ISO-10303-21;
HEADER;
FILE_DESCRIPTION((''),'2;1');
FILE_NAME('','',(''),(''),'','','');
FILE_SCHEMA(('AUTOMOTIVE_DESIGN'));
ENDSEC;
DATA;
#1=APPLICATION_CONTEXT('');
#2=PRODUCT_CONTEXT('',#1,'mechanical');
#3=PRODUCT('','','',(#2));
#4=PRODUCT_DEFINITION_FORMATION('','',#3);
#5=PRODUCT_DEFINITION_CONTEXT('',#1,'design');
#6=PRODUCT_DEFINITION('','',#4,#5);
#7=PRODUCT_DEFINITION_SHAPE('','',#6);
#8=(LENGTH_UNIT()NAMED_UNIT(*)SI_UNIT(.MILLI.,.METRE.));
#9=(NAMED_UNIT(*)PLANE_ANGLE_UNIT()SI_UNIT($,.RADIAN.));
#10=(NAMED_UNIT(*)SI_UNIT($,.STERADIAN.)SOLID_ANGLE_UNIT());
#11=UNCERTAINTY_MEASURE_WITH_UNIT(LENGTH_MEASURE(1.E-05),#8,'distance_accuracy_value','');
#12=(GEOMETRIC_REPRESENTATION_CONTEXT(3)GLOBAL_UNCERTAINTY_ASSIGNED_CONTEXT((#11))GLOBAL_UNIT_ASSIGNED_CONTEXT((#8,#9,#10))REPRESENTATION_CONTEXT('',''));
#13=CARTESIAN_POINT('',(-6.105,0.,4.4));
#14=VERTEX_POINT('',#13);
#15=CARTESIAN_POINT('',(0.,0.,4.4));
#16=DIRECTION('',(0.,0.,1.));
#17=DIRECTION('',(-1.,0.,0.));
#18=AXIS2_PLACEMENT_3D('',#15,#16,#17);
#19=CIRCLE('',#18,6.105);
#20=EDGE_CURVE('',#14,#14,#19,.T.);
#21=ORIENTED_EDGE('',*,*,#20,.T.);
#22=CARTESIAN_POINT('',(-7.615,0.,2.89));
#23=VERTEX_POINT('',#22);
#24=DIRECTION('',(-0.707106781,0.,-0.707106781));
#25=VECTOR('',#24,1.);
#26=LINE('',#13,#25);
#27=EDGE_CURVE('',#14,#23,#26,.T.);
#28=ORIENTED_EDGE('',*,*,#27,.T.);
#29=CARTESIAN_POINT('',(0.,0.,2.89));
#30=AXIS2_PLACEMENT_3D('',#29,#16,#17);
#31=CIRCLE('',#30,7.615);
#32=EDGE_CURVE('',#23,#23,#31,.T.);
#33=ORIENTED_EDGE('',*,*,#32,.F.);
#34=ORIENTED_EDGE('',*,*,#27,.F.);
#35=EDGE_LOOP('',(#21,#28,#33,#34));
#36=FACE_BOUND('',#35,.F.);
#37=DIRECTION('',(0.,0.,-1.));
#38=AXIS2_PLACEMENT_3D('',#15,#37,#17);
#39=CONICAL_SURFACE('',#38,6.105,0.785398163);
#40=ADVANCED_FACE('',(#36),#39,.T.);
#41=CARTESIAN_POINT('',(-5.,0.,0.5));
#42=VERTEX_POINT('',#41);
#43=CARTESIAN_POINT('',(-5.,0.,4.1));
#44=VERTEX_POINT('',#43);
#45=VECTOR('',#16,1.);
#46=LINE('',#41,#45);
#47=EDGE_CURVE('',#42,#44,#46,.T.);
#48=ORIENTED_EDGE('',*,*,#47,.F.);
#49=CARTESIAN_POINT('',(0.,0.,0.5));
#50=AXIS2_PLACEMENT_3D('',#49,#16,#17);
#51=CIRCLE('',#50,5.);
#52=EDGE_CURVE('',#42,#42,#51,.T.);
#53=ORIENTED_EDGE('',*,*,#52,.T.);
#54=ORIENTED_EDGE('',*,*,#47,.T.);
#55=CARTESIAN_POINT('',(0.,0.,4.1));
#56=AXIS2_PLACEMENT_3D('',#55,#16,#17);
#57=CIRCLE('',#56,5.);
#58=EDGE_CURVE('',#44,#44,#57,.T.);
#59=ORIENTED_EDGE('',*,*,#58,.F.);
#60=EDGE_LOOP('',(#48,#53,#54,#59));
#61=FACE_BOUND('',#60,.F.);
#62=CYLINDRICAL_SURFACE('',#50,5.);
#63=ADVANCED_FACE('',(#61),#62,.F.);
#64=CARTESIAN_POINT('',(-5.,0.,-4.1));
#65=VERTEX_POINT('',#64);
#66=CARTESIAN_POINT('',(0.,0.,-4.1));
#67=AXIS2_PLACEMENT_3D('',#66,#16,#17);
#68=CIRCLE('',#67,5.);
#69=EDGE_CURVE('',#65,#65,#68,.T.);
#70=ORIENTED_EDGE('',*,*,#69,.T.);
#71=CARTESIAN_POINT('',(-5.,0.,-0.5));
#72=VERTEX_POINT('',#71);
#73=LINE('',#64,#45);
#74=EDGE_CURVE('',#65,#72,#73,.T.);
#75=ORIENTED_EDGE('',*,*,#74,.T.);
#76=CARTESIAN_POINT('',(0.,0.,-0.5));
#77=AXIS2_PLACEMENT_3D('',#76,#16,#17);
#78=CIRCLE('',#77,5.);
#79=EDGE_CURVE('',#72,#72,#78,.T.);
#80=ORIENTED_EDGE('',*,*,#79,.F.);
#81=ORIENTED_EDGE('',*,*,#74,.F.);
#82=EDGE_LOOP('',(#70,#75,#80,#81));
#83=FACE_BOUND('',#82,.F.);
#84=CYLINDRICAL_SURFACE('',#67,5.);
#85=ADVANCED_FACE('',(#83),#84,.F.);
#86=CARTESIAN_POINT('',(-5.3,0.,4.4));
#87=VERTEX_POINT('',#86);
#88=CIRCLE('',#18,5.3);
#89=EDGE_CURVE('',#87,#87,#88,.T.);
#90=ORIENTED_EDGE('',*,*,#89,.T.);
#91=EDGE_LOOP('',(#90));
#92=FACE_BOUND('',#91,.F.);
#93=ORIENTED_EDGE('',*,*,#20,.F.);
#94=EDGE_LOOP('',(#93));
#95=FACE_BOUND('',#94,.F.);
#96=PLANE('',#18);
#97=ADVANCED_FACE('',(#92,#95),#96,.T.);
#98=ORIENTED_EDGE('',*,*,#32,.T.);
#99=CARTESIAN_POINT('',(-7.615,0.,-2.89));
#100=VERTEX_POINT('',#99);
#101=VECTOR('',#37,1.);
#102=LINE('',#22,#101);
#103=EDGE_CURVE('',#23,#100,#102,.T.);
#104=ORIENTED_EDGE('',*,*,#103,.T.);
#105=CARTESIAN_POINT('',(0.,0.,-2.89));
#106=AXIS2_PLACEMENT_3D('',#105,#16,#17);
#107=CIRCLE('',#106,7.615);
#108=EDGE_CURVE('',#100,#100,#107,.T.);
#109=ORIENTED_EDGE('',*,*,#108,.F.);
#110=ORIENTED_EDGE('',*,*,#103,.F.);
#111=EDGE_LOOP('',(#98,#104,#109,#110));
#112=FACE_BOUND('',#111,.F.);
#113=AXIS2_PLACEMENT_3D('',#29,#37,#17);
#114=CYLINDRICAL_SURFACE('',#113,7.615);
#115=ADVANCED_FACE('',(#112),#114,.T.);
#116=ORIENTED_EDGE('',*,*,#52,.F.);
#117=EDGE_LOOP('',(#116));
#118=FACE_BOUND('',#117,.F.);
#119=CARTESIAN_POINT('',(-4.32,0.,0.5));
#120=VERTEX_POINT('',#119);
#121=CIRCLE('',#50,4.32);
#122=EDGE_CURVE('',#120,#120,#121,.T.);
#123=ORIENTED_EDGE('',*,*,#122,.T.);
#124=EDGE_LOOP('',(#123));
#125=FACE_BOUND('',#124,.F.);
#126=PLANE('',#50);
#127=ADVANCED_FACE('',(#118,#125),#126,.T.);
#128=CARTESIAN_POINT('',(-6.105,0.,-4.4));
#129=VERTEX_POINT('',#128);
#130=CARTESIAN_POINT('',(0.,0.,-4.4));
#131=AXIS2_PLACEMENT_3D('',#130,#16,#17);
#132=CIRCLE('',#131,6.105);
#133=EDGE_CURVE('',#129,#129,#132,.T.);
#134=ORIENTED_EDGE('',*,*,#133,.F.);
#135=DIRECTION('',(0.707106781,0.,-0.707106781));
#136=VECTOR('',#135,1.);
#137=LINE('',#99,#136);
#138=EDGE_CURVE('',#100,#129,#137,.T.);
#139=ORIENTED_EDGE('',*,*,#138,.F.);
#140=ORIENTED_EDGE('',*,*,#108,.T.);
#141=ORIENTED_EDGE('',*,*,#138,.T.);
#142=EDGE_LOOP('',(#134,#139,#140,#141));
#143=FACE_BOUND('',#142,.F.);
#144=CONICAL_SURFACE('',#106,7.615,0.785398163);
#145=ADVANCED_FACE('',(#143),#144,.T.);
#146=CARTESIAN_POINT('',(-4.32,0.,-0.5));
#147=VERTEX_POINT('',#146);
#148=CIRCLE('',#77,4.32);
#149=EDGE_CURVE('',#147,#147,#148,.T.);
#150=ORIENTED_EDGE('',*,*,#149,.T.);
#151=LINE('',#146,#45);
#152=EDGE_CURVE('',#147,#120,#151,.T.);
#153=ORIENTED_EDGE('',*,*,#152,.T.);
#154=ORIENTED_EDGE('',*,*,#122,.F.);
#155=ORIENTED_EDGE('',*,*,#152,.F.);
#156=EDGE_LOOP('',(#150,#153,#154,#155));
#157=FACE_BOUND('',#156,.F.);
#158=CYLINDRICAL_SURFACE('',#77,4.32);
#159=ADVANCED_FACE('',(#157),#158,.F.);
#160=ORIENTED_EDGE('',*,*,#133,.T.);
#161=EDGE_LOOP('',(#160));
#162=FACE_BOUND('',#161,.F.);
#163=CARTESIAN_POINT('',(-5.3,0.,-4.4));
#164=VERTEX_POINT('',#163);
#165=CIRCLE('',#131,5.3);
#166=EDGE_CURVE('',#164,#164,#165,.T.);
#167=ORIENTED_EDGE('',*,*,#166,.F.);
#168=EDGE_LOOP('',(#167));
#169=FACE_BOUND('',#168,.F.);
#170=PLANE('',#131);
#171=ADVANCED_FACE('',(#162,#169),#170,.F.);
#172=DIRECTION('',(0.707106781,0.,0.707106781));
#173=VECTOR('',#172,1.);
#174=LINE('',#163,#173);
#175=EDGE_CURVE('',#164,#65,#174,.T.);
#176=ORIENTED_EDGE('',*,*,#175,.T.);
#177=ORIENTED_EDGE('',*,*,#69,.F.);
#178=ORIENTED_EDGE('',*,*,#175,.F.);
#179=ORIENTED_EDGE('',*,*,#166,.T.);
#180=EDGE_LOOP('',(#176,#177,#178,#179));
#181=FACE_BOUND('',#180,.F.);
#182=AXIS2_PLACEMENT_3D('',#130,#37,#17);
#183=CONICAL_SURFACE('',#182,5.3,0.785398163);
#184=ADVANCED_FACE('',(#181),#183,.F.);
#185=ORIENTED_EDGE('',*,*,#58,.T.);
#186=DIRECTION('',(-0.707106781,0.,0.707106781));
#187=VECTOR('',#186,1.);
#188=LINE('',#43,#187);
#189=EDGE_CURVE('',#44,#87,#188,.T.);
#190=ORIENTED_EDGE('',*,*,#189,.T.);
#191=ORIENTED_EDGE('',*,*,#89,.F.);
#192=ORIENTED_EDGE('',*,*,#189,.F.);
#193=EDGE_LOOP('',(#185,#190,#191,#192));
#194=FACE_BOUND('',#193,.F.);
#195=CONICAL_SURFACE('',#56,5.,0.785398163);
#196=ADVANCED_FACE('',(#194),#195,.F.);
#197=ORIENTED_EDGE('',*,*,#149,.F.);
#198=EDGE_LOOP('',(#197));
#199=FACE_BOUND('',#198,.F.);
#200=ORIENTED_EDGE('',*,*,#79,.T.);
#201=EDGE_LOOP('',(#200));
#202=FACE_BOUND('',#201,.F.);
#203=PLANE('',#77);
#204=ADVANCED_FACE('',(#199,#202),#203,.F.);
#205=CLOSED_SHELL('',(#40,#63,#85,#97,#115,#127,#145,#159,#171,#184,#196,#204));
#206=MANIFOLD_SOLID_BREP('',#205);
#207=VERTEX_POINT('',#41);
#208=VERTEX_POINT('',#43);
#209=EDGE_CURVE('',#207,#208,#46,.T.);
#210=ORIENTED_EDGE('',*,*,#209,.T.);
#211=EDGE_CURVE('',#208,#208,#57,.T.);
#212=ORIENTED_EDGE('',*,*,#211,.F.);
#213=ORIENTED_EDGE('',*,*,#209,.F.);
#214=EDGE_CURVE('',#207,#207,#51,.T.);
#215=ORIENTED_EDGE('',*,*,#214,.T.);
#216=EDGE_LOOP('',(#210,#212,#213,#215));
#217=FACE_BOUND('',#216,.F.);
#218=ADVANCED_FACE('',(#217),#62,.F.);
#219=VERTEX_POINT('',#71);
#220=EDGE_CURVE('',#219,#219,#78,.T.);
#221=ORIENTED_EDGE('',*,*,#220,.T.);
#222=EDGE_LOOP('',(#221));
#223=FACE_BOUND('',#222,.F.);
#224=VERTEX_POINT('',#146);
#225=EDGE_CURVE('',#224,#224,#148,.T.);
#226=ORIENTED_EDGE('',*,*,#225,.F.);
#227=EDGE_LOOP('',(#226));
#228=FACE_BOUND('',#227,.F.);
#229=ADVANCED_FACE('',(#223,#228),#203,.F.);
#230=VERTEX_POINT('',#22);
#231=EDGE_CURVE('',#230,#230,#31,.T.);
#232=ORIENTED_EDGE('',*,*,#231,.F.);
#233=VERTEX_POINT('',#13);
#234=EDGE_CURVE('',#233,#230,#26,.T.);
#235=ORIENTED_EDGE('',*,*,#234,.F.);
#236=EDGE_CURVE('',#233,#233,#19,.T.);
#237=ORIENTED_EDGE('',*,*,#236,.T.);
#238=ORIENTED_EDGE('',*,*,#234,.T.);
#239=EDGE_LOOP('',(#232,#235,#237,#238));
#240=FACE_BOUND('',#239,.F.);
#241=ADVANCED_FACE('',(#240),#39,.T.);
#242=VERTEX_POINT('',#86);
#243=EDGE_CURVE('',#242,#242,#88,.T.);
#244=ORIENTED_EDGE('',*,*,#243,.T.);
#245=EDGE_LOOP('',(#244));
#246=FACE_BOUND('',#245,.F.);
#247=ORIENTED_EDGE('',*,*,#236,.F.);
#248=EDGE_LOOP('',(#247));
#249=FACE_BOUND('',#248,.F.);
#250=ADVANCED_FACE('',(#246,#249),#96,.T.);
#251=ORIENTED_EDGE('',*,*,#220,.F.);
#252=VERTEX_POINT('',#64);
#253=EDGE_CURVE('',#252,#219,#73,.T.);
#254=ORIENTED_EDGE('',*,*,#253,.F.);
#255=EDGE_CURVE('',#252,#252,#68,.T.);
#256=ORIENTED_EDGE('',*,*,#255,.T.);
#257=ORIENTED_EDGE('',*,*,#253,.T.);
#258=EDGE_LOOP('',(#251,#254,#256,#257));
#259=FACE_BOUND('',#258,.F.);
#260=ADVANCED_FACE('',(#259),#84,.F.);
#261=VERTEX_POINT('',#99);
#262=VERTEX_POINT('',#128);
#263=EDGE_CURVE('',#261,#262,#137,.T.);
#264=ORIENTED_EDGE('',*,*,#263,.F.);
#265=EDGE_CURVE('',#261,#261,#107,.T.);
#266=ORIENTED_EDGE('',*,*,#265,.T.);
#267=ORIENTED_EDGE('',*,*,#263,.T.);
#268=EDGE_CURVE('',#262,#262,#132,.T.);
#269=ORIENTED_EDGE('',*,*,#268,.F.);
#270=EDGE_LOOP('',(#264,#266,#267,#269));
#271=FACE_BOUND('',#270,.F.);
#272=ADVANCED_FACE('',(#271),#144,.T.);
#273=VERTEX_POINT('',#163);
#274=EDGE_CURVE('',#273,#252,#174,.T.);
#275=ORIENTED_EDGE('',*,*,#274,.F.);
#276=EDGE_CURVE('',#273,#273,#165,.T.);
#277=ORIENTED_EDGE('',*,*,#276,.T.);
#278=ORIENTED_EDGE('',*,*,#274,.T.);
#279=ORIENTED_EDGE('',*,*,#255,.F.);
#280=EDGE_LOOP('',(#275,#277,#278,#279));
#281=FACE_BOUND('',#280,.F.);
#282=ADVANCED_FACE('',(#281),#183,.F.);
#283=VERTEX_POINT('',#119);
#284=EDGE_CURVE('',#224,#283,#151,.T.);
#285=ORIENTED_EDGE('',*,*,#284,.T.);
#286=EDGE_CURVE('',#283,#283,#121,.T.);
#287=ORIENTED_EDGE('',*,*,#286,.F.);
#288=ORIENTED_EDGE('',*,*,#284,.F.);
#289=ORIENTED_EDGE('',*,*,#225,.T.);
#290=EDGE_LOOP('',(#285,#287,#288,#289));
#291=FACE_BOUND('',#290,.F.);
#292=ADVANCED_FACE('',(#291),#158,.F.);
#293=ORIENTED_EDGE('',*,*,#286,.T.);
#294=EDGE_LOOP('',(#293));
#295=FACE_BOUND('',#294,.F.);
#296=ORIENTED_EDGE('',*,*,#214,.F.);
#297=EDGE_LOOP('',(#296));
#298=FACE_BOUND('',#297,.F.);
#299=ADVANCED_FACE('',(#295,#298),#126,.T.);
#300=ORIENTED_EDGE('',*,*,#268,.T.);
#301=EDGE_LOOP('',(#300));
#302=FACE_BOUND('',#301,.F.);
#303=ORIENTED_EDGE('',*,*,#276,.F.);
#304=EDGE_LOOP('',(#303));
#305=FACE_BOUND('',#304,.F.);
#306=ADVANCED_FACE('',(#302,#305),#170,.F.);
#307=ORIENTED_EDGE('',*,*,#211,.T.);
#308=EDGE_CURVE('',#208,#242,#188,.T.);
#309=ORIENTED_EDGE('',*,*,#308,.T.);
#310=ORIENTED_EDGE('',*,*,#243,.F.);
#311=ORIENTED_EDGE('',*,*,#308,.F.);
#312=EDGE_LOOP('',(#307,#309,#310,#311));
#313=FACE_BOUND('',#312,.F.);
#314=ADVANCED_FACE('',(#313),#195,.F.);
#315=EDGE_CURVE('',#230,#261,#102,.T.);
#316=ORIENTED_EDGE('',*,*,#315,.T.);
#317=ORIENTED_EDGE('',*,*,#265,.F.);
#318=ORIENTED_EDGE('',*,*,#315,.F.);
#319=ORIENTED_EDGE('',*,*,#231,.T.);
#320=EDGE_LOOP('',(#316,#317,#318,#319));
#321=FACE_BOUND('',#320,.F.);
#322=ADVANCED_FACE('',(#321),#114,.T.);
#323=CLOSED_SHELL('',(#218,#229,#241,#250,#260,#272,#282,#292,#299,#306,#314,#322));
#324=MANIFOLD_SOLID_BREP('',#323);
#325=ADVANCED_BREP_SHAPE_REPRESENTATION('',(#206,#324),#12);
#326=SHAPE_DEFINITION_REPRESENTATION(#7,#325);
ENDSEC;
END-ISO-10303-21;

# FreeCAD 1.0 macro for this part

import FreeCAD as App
import Part
import Sketcher

V = App.Vector

doc = App.newDocument("Part")
body = doc.addObject("PartDesign::Body", "Body")

# Sketch on XZ plane
sketch1 = body.newObject("Sketcher::SketchObject", "Sketch")
sketch1.AttachmentSupport = (doc.getObject("XZ_Plane"), [""])
sketch1.MapMode = "FlatFace"
sketch1.addGeometry(Part.LineSegment(V(-5, 4.1, 0), V(-5.3, 4.4, 0)), False)
sketch1.addGeometry(Part.LineSegment(V(-5.3, 4.4, 0), V(-6.105, 4.4, 0)), False)
sketch1.addGeometry(Part.LineSegment(V(-6.105, 4.4, 0), V(-7.615, 2.89, 0)), False)
sketch1.addGeometry(Part.LineSegment(V(-7.615, 2.89, 0), V(-7.615, -2.89, 0)), False)
sketch1.addGeometry(Part.LineSegment(V(-7.615, -2.89, 0), V(-6.105, -4.4, 0)), False)
sketch1.addGeometry(Part.LineSegment(V(-6.105, -4.4, 0), V(-5.3, -4.4, 0)), False)
sketch1.addGeometry(Part.LineSegment(V(-5.3, -4.4, 0), V(-5, -4.1, 0)), False)
sketch1.addGeometry(Part.LineSegment(V(-5, -4.1, 0), V(-5, -0.5, 0)), False)
sketch1.addGeometry(Part.LineSegment(V(-5, -0.5, 0), V(-4.32, -0.5, 0)), False)
sketch1.addGeometry(Part.LineSegment(V(-4.32, -0.5, 0), V(-4.32, 0.5, 0)), False)
sketch1.addGeometry(Part.LineSegment(V(-4.32, 0.5, 0), V(-5, 0.5, 0)), False)
sketch1.addGeometry(Part.LineSegment(V(-5, 0.5, 0), V(-5, 4.1, 0)), False)
sketch1.addConstraint(Sketcher.Constraint("Coincident", 0, 2, 1, 1))
sketch1.addConstraint(Sketcher.Constraint("Coincident", 1, 2, 2, 1))
sketch1.addConstraint(Sketcher.Constraint("Coincident", 2, 2, 3, 1))
sketch1.addConstraint(Sketcher.Constraint("Coincident", 3, 2, 4, 1))
sketch1.addConstraint(Sketcher.Constraint("Coincident", 4, 2, 5, 1))
sketch1.addConstraint(Sketcher.Constraint("Coincident", 5, 2, 6, 1))
sketch1.addConstraint(Sketcher.Constraint("Coincident", 6, 2, 7, 1))
sketch1.addConstraint(Sketcher.Constraint("Coincident", 7, 2, 8, 1))
sketch1.addConstraint(Sketcher.Constraint("Coincident", 8, 2, 9, 1))
sketch1.addConstraint(Sketcher.Constraint("Coincident", 9, 2, 10, 1))
sketch1.addConstraint(Sketcher.Constraint("Coincident", 10, 2, 11, 1))
sketch1.addConstraint(Sketcher.Constraint("Coincident", 11, 2, 0, 1))
sketch1.addConstraint(Sketcher.Constraint("Horizontal", 1))
sketch1.addConstraint(Sketcher.Constraint("Vertical", 3))
sketch1.addConstraint(Sketcher.Constraint("Horizontal", 5))
sketch1.addConstraint(Sketcher.Constraint("Vertical", 7))
sketch1.addConstraint(Sketcher.Constraint("Horizontal", 8))
sketch1.addConstraint(Sketcher.Constraint("Vertical", 9))
sketch1.addConstraint(Sketcher.Constraint("Horizontal", 10))
sketch1.addConstraint(Sketcher.Constraint("Vertical", 11))
sketch1.addConstraint(Sketcher.Constraint("Symmetric", 1, 2, 4, 2, -1))
sketch1.addConstraint(Sketcher.Constraint("Symmetric", 7, 2, 10, 2, -1))
sketch1.addConstraint(Sketcher.Constraint("Perpendicular", 0, 2))
sketch1.addConstraint(Sketcher.Constraint("Perpendicular", 2, 4))
sketch1.addConstraint(Sketcher.Constraint("Perpendicular", 4, 6))
sketch1.addConstraint(Sketcher.Constraint("Vertical", 0, 2, 5, 2))
sketch1.addConstraint(Sketcher.Constraint("Equal", 7, 11))
sketch1.addConstraint(Sketcher.Constraint("DistanceY", 9, 1, 9, 2, 1.0))
sketch1.addConstraint(Sketcher.Constraint("DistanceY", 7, 1, 7, 2, 3.6))
sketch1.addConstraint(Sketcher.Constraint("DistanceX", 6, 2, -1, 1, 5.0))
sketch1.addConstraint(Sketcher.Constraint("DistanceX", 8, 1, 8, 2, 0.68))
sketch1.addConstraint(Sketcher.Constraint("DistanceY", 3, 2, 3, 1, 5.78))
sketch1.addConstraint(Sketcher.Constraint("DistanceX", 0, 2, -1, 1, 5.3))
sketch1.addConstraint(Sketcher.Constraint("DistanceX", 1, 2, 1, 1, 0.805))
revolution = body.newObject("PartDesign::Revolution", "Revolution")
revolution.Profile = sketch1
revolution.ReferenceAxis = (sketch1, ["V_Axis"])
revolution.Angle = 360
body2 = doc.addObject("PartDesign::Body", "Body001")

# Sketch on XZ plane
sketch2 = body2.newObject("Sketcher::SketchObject", "Sketch001")
sketch2.AttachmentSupport = (doc.getObject("XZ_Plane001"), [""])
sketch2.MapMode = "FlatFace"
sketch2.addGeometry(Part.LineSegment(V(-5, 4.1, 0), V(-5.3, 4.4, 0)), False)
sketch2.addGeometry(Part.LineSegment(V(-5.3, 4.4, 0), V(-6.105, 4.4, 0)), False)
sketch2.addGeometry(Part.LineSegment(V(-6.105, 4.4, 0), V(-7.615, 2.89, 0)), False)
sketch2.addGeometry(Part.LineSegment(V(-7.615, 2.89, 0), V(-7.615, -2.89, 0)), False)
sketch2.addGeometry(Part.LineSegment(V(-7.615, -2.89, 0), V(-6.105, -4.4, 0)), False)
sketch2.addGeometry(Part.LineSegment(V(-6.105, -4.4, 0), V(-5.3, -4.4, 0)), False)
sketch2.addGeometry(Part.LineSegment(V(-5.3, -4.4, 0), V(-5, -4.1, 0)), False)
sketch2.addGeometry(Part.LineSegment(V(-5, -4.1, 0), V(-5, -0.5, 0)), False)
sketch2.addGeometry(Part.LineSegment(V(-5, -0.5, 0), V(-4.32, -0.5, 0)), False)
sketch2.addGeometry(Part.LineSegment(V(-4.32, -0.5, 0), V(-4.32, 0.5, 0)), False)
sketch2.addGeometry(Part.LineSegment(V(-4.32, 0.5, 0), V(-5, 0.5, 0)), False)
sketch2.addGeometry(Part.LineSegment(V(-5, 0.5, 0), V(-5, 4.1, 0)), False)
sketch2.addConstraint(Sketcher.Constraint("Coincident", 0, 2, 1, 1))
sketch2.addConstraint(Sketcher.Constraint("Coincident", 1, 2, 2, 1))
sketch2.addConstraint(Sketcher.Constraint("Coincident", 2, 2, 3, 1))
sketch2.addConstraint(Sketcher.Constraint("Coincident", 3, 2, 4, 1))
sketch2.addConstraint(Sketcher.Constraint("Coincident", 4, 2, 5, 1))
sketch2.addConstraint(Sketcher.Constraint("Coincident", 5, 2, 6, 1))
sketch2.addConstraint(Sketcher.Constraint("Coincident", 6, 2, 7, 1))
sketch2.addConstraint(Sketcher.Constraint("Coincident", 7, 2, 8, 1))
sketch2.addConstraint(Sketcher.Constraint("Coincident", 8, 2, 9, 1))
sketch2.addConstraint(Sketcher.Constraint("Coincident", 9, 2, 10, 1))
sketch2.addConstraint(Sketcher.Constraint("Coincident", 10, 2, 11, 1))
sketch2.addConstraint(Sketcher.Constraint("Coincident", 11, 2, 0, 1))
sketch2.addConstraint(Sketcher.Constraint("Horizontal", 1))
sketch2.addConstraint(Sketcher.Constraint("Vertical", 3))
sketch2.addConstraint(Sketcher.Constraint("Horizontal", 5))
sketch2.addConstraint(Sketcher.Constraint("Vertical", 7))
sketch2.addConstraint(Sketcher.Constraint("Horizontal", 8))
sketch2.addConstraint(Sketcher.Constraint("Vertical", 9))
sketch2.addConstraint(Sketcher.Constraint("Horizontal", 10))
sketch2.addConstraint(Sketcher.Constraint("Vertical", 11))
sketch2.addConstraint(Sketcher.Constraint("Symmetric", 1, 2, 4, 2, -1))
sketch2.addConstraint(Sketcher.Constraint("Symmetric", 7, 2, 10, 2, -1))
sketch2.addConstraint(Sketcher.Constraint("Perpendicular", 0, 2))
sketch2.addConstraint(Sketcher.Constraint("Perpendicular", 2, 4))
sketch2.addConstraint(Sketcher.Constraint("Perpendicular", 4, 6))
sketch2.addConstraint(Sketcher.Constraint("Vertical", 0, 2, 5, 2))
sketch2.addConstraint(Sketcher.Constraint("Equal", 7, 11))
sketch2.addConstraint(Sketcher.Constraint("DistanceY", 9, 1, 9, 2, 1.0))
sketch2.addConstraint(Sketcher.Constraint("DistanceY", 7, 1, 7, 2, 3.6))
sketch2.addConstraint(Sketcher.Constraint("DistanceX", 6, 2, -1, 1, 5.0))
sketch2.addConstraint(Sketcher.Constraint("DistanceX", 8, 1, 8, 2, 0.68))
sketch2.addConstraint(Sketcher.Constraint("DistanceY", 3, 2, 3, 1, 5.78))
sketch2.addConstraint(Sketcher.Constraint("DistanceX", 0, 2, -1, 1, 5.3))
sketch2.addConstraint(Sketcher.Constraint("DistanceX", 1, 2, 1, 1, 0.805))
revolution2 = body2.newObject("PartDesign::Revolution", "Revolution001")
revolution2.Profile = sketch2
revolution2.ReferenceAxis = (sketch2, ["V_Axis"])
revolution2.Angle = 360

doc.recompute()
